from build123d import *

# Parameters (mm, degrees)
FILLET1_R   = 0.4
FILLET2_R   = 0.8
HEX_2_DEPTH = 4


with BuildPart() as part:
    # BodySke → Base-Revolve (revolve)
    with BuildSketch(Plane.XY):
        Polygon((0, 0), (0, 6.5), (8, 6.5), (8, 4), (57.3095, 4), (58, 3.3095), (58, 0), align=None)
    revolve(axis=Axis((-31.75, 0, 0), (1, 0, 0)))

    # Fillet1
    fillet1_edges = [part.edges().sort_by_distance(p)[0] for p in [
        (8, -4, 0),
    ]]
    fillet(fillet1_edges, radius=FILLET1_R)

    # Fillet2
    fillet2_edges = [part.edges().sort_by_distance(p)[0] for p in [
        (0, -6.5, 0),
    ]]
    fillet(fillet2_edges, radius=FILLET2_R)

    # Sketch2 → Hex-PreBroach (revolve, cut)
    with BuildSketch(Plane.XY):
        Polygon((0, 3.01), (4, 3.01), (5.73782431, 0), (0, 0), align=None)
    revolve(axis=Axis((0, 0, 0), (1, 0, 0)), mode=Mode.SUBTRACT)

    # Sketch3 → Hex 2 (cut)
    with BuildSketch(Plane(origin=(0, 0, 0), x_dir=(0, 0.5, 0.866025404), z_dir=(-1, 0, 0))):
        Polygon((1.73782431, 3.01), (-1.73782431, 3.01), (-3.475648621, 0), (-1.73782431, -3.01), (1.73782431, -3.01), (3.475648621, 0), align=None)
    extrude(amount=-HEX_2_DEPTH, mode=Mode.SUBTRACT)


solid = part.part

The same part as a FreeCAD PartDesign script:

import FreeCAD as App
import Part
import Sketcher
from FreeCAD import Vector
Q = App.Units.Quantity


def edges_at(feature, points):
    """Names of the edges that pass closest to the given points."""
    edges = feature.Shape.Edges
    near = lambda p: min(range(len(edges)), key=lambda i: edges[i].distToShape(Part.Vertex(*p))[0])
    return sorted({f"Edge{near(p) + 1}" for p in points})


def add_polygon(sketch, points):
    """Adds a closed chain of lines whose ends are joined by coincident constraints."""
    first, n = sketch.GeometryCount, len(points)
    for a, b in zip(points, points[1:] + points[:1]):
        sketch.addGeometry(Part.LineSegment(App.Vector(*a, 0), App.Vector(*b, 0)), False)
    for i in range(n):
        sketch.addConstraint(Sketcher.Constraint("Coincident", first + i, 2, first + (i + 1) % n, 1))

doc = App.newDocument("Part")
params = doc.addObject("Spreadsheet::Sheet", "Params")
for row, (alias, value) in enumerate([
    ("sketch1_width", "58 mm"),
    ("sketch1_width2", "8 mm"),
    ("sketch1_height", "6.5 mm"),
    ("sketch1_height2", "2.5 mm"),
    ("revolution_angle", "360 deg"),
    ("fillet_radius", "0.4 mm"),
    ("fillet2_radius", "0.8 mm"),
    ("sketch2_width", "4 mm"),
    ("sketch2_height", "3.01 mm"),
    ("groove_angle", "360 deg"),
    ("pocket1_length", "4 mm"),
], start=1):
    params.set(f"A{row}", alias)
    params.set(f"B{row}", "=" + value)
    params.setAlias(f"B{row}", alias)

body = doc.addObject("PartDesign::Body", "Body")

# Sketch on XY plane
sketch1 = body.newObject("Sketcher::SketchObject", "Sketch")
sketch1.AttachmentSupport = (doc.getObject("XY_Plane"), [""])
sketch1.MapMode = "FlatFace"
add_polygon(sketch1, [(0, 6.5), (0, 0), (58, 0), (58, 3.3), (57.3, 4), (8, 4), (8, 6.5)])  # lines 0-6
sketch1.addConstraint(Sketcher.Constraint("Vertical", 0))
sketch1.addConstraint(Sketcher.Constraint("Horizontal", 1))
sketch1.addConstraint(Sketcher.Constraint("Vertical", 2))
sketch1.addConstraint(Sketcher.Constraint("Horizontal", 4))
sketch1.addConstraint(Sketcher.Constraint("Vertical", 5))
sketch1.addConstraint(Sketcher.Constraint("Horizontal", 6))
sketch1.addConstraint(Sketcher.Constraint("Coincident", 0, 2, -1, 1))
sketch1.addConstraint(Sketcher.Constraint("DistanceX", 1, 1, 1, 2, 58.0))
sketch1.addConstraint(Sketcher.Constraint("DistanceX", 6, 2, 6, 1, 8.0))
sketch1.addConstraint(Sketcher.Constraint("Angle", 3, Q("135 deg")))
sketch1.addConstraint(Sketcher.Constraint("DistanceY", 0, 2, 0, 1, 6.5))
sketch1.addConstraint(Sketcher.Constraint("DistanceY", 5, 1, 5, 2, 2.5))
sketch1.addConstraint(Sketcher.Constraint("DistanceX", 4, 2, 4, 1, 49.3095))
sketch1.setExpression("Constraints[14]", "Params.sketch1_width")
sketch1.setExpression("Constraints[15]", "Params.sketch1_width2")
sketch1.setExpression("Constraints[17]", "Params.sketch1_height")
sketch1.setExpression("Constraints[18]", "Params.sketch1_height2")
revolution = body.newObject("PartDesign::Revolution", "Revolution")
revolution.Profile = sketch1
revolution.ReferenceAxis = (sketch1, ["H_Axis"])
revolution.setExpression("Angle", "Params.revolution_angle")
doc.recompute()

fillet = body.newObject("PartDesign::Fillet", "Fillet")
fillet.Base = (revolution, edges_at(revolution, [(8, -4, 0)]))
fillet.setExpression("Radius", "Params.fillet_radius")
doc.recompute()

fillet2 = body.newObject("PartDesign::Fillet", "Fillet001")
fillet2.Base = (fillet, edges_at(fillet, [(0, -6.5, 0)]))
fillet2.setExpression("Radius", "Params.fillet2_radius")

# Sketch on XY plane
sketch2 = body.newObject("Sketcher::SketchObject", "Sketch001")
sketch2.AttachmentSupport = (doc.getObject("XY_Plane"), [""])
sketch2.MapMode = "FlatFace"
add_polygon(sketch2, [(4, 3), (0, 3), (0, 0), (5.7, 0)])  # lines 0-3
sketch2.addConstraint(Sketcher.Constraint("Horizontal", 0))
sketch2.addConstraint(Sketcher.Constraint("Vertical", 1))
sketch2.addConstraint(Sketcher.Constraint("Horizontal", 2))
sketch2.addConstraint(Sketcher.Constraint("Coincident", 1, 2, -1, 1))
sketch2.addConstraint(Sketcher.Constraint("DistanceX", 0, 2, 0, 1, 4.0))
sketch2.addConstraint(Sketcher.Constraint("Angle", 3, Q("120 deg")))
sketch2.addConstraint(Sketcher.Constraint("DistanceY", 1, 2, 1, 1, 3.01))
sketch2.setExpression("Constraints[8]", "Params.sketch2_width")
sketch2.setExpression("Constraints[10]", "Params.sketch2_height")
groove = body.newObject("PartDesign::Groove", "Groove")
groove.Profile = sketch2
groove.ReferenceAxis = (sketch2, ["H_Axis"])
groove.setExpression("Angle", "Params.groove_angle")

# Sketch on YZ plane
sketch3 = body.newObject("Sketcher::SketchObject", "Sketch002")
sketch3.AttachmentSupport = (doc.getObject("YZ_Plane"), [""])
sketch3.MapMode = "FlatFace"
add_polygon(sketch3, [(3.5, 0), (1.7, -3), (-1.7, -3), (-3.5, 0), (-1.7, 3), (1.7, 3)])  # lines 0-5
sketch3.addConstraint(Sketcher.Constraint("Horizontal", 1))
sketch3.addConstraint(Sketcher.Constraint("Horizontal", 4))
sketch3.addConstraint(Sketcher.Constraint("Symmetric", 0, 2, 3, 2, -1, 1))
sketch3.addConstraint(Sketcher.Constraint("Symmetric", 2, 2, 5, 2, -1, 1))
sketch3.addConstraint(Sketcher.Constraint("PointOnObject", 2, 2, -1))
sketch3.addConstraint(Sketcher.Constraint("Parallel", 2, 5))
sketch3.addConstraint(Sketcher.Constraint("Vertical", 1, 2, 3, 2))
sketch3.addConstraint(Sketcher.Constraint("Angle", 0, Q("-120 deg")))
sketch3.addConstraint(Sketcher.Constraint("DistanceY", 0, 2, -1, 1, 3.01))
sketch3.addConstraint(Sketcher.Constraint("DistanceX", 1, 2, 1, 1, 3.475649))
pocket1 = body.newObject("PartDesign::Pocket", "Pocket")
pocket1.Profile = sketch3
pocket1.setExpression("Length", "Params.pocket1_length")
pocket1.Reversed = True

doc.recompute()
